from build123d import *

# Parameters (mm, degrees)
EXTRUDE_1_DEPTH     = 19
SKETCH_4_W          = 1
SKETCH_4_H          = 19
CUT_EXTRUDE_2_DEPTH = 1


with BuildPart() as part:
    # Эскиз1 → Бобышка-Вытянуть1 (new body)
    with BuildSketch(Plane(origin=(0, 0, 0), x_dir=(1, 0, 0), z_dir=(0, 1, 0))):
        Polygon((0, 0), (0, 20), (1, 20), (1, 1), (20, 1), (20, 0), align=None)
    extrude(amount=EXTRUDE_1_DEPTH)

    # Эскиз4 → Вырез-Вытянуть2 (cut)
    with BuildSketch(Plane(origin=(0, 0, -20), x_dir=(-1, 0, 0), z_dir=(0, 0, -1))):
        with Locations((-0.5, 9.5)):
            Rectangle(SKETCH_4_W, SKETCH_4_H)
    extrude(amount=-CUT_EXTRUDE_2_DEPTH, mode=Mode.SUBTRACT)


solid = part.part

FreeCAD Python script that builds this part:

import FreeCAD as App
import Part
import Sketcher
Q = App.Units.Quantity


def add_polygon(sketch, points):
    """Adds a closed chain of lines whose ends are joined by coincident constraints."""
    first, n = sketch.GeometryCount, len(points)
    for a, b in zip(points, points[1:] + points[:1]):
        sketch.addGeometry(Part.LineSegment(App.Vector(*a, 0), App.Vector(*b, 0)), False)
    for i in range(n):
        sketch.addConstraint(Sketcher.Constraint("Coincident", first + i, 2, first + (i + 1) % n, 1))

doc = App.newDocument("Part")
body = doc.addObject("PartDesign::Body", "Body")

sketch1 = body.newObject("Sketcher::SketchObject", "Sketch")
sketch1.AttachmentSupport = (doc.getObject("XZ_Plane"), [""])
sketch1.MapMode = "FlatFace"
add_polygon(sketch1, [(0, -20), (0, 0), (20, 0), (20, -1), (1, -1), (1, -20)])
sketch1.addConstraint([
    Sketcher.Constraint("Vertical", 0),
    Sketcher.Constraint("Horizontal", 1),
    Sketcher.Constraint("Vertical", 2),
    Sketcher.Constraint("Horizontal", 3),
    Sketcher.Constraint("Vertical", 4),
    Sketcher.Constraint("Horizontal", 5),
    Sketcher.Constraint("Coincident", 0, 2, -1, 1),
    Sketcher.Constraint("Equal", 1, 0),
    Sketcher.Constraint("Equal", 5, 2),
    Sketcher.Constraint("DistanceX", 1, 1, 1, 2, Q("20 mm")),
    Sketcher.Constraint("DistanceX", 3, 2, 3, 1, Q("19 mm")),
])
pad1 = body.newObject("PartDesign::Pad", "Pad")
pad1.Profile = sketch1
pad1.Length = 19
pad1.Reversed = True

sketch2 = body.newObject("Sketcher::SketchObject", "Sketch001")
sketch2.AttachmentSupport = (doc.getObject("XY_Plane"), [""])
sketch2.MapMode = "FlatFace"
sketch2.AttachmentOffset = App.Placement(App.Vector(0, 0, -20), App.Rotation())
add_polygon(sketch2, [(1, 19), (1, 0), (0, 0), (0, 19)])
sketch2.addConstraint([
    Sketcher.Constraint("Vertical", 0),
    Sketcher.Constraint("Horizontal", 1),
    Sketcher.Constraint("Vertical", 2),
    Sketcher.Constraint("Horizontal", 3),
    Sketcher.Constraint("Coincident", 1, 2, -1, 1),
    Sketcher.Constraint("DistanceX", 1, 2, 1, 1, Q("1 mm")),
    Sketcher.Constraint("DistanceY", 0, 2, 0, 1, Q("19 mm")),
])
pocket1 = body.newObject("PartDesign::Pocket", "Pocket")
pocket1.Profile = sketch2
pocket1.Length = 1
pocket1.Reversed = True

doc.recompute()
